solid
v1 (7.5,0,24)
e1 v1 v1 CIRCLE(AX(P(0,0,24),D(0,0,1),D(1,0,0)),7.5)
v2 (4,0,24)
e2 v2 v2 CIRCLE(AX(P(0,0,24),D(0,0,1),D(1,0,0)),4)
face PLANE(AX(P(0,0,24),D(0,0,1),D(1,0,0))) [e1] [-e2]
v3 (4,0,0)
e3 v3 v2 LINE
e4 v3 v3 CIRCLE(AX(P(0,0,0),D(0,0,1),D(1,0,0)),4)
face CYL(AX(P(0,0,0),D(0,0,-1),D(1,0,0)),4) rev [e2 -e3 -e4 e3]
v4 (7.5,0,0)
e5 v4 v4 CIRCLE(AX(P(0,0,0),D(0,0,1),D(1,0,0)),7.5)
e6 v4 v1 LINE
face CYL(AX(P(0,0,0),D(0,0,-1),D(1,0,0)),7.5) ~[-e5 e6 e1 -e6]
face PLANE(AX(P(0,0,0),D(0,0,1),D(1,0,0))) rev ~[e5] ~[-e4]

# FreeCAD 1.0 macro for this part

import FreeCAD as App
import Part
import Sketcher

doc = App.newDocument("Part")
body = doc.addObject("PartDesign::Body", "Body")

sketch1 = doc.addObject("Sketcher::SketchObject", "Sketch")
body.addObject(sketch1)
sketch1.AttachmentSupport = (doc.XY_Plane, [""])
sketch1.MapMode = "FlatFace"
sketch1.addGeometry(Part.Circle(App.Vector(0, 0, 0), App.Vector(0, 0, 1), 7.5), False)
sketch1.addGeometry(Part.Circle(App.Vector(0, 0, 0), App.Vector(0, 0, 1), 4), False)
sketch1.addConstraint(Sketcher.Constraint("Coincident", 0, 3, -1, 1))
sketch1.addConstraint(Sketcher.Constraint("Coincident", 1, 3, -1, 1))
sketch1.addConstraint(Sketcher.Constraint("Diameter", 0, 15.0))
sketch1.addConstraint(Sketcher.Constraint("Diameter", 1, 8.0))
pad1 = doc.addObject("PartDesign::Pad", "Pad")
body.addObject(pad1)
pad1.Profile = sketch1
pad1.Length = 24

doc.recompute()
